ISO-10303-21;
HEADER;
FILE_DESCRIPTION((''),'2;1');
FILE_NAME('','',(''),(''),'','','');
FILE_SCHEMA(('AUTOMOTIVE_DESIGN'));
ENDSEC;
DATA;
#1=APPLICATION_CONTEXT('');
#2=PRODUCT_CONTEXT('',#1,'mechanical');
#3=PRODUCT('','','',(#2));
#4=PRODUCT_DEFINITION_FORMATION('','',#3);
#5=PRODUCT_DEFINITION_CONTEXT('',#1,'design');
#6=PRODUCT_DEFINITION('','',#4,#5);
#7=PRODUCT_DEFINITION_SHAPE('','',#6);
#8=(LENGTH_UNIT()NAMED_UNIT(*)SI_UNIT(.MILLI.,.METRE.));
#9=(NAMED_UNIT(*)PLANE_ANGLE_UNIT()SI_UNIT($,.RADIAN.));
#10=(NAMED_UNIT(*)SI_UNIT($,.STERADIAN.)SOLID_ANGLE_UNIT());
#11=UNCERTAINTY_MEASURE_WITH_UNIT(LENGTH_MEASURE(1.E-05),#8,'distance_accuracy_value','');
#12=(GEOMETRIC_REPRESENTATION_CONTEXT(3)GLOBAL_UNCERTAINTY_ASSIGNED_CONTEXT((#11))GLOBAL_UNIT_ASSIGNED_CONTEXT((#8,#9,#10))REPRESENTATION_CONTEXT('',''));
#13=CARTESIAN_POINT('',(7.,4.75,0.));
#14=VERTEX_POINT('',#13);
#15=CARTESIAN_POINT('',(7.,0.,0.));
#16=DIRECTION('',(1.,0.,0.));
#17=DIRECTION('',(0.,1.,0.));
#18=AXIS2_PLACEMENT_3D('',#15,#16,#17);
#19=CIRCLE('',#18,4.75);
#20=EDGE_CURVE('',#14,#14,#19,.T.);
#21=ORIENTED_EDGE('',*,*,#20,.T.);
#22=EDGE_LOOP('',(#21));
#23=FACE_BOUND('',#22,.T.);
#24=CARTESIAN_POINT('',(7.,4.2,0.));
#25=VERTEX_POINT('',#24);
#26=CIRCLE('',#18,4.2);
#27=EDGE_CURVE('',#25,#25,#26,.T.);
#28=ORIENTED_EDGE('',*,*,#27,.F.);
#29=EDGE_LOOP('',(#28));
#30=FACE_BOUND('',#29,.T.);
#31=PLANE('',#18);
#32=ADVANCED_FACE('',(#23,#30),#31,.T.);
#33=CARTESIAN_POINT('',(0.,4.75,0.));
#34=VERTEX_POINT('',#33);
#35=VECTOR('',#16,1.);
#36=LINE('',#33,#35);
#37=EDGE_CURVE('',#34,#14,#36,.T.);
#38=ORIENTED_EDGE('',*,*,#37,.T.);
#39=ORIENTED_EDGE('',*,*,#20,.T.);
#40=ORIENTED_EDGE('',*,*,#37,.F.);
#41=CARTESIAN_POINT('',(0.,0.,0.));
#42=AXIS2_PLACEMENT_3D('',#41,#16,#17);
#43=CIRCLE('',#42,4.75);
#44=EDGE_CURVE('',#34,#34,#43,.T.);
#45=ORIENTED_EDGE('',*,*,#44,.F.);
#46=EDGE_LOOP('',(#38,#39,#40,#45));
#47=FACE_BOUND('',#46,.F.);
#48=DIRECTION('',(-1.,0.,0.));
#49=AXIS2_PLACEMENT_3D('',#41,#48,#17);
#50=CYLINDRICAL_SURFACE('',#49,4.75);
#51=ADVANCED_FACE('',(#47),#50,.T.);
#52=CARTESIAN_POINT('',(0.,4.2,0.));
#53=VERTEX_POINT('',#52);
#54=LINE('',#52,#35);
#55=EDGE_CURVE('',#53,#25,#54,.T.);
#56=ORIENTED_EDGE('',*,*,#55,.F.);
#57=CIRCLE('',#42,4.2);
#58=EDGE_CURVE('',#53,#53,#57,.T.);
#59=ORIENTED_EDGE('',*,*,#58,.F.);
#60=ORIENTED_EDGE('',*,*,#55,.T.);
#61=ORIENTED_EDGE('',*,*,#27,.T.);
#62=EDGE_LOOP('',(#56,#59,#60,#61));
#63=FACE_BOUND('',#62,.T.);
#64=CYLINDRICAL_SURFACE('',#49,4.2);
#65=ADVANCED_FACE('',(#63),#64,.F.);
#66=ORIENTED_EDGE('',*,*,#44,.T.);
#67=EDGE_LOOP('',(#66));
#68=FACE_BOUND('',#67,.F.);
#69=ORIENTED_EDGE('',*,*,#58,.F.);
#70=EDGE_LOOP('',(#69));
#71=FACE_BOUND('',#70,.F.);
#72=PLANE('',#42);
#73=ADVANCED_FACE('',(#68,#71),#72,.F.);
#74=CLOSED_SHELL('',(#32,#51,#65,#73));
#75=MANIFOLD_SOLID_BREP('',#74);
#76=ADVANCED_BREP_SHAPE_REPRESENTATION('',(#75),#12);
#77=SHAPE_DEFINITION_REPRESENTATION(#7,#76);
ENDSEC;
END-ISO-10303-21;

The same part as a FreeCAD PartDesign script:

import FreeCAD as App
import Part
import Sketcher
from FreeCAD import Vector

doc = App.newDocument("Part")
body = doc.addObject("PartDesign::Body", "Body")

sketch1 = body.newObject("Sketcher::SketchObject", "Sketch")
sketch1.AttachmentSupport = (doc.getObject("YZ_Plane"), [""])
sketch1.MapMode = "FlatFace"
sketch1.addGeometry([
    Part.Circle(Vector(0, 0, 0), Vector(0, 0, 1), 4.8),
    Part.Circle(Vector(0, 0, 0), Vector(0, 0, 1), 4.2),
], False)
sketch1.addConstraint([
    Sketcher.Constraint("Coincident", 0, 3, -1, 1),
    Sketcher.Constraint("Coincident", 1, 3, -1, 1),
    Sketcher.Constraint("Diameter", 0, 9.5),
    Sketcher.Constraint("Diameter", 1, 8.4),
])
pad1 = body.newObject("PartDesign::Pad", "Pad")
pad1.Profile = sketch1
pad1.Length = 7

doc.recompute()
